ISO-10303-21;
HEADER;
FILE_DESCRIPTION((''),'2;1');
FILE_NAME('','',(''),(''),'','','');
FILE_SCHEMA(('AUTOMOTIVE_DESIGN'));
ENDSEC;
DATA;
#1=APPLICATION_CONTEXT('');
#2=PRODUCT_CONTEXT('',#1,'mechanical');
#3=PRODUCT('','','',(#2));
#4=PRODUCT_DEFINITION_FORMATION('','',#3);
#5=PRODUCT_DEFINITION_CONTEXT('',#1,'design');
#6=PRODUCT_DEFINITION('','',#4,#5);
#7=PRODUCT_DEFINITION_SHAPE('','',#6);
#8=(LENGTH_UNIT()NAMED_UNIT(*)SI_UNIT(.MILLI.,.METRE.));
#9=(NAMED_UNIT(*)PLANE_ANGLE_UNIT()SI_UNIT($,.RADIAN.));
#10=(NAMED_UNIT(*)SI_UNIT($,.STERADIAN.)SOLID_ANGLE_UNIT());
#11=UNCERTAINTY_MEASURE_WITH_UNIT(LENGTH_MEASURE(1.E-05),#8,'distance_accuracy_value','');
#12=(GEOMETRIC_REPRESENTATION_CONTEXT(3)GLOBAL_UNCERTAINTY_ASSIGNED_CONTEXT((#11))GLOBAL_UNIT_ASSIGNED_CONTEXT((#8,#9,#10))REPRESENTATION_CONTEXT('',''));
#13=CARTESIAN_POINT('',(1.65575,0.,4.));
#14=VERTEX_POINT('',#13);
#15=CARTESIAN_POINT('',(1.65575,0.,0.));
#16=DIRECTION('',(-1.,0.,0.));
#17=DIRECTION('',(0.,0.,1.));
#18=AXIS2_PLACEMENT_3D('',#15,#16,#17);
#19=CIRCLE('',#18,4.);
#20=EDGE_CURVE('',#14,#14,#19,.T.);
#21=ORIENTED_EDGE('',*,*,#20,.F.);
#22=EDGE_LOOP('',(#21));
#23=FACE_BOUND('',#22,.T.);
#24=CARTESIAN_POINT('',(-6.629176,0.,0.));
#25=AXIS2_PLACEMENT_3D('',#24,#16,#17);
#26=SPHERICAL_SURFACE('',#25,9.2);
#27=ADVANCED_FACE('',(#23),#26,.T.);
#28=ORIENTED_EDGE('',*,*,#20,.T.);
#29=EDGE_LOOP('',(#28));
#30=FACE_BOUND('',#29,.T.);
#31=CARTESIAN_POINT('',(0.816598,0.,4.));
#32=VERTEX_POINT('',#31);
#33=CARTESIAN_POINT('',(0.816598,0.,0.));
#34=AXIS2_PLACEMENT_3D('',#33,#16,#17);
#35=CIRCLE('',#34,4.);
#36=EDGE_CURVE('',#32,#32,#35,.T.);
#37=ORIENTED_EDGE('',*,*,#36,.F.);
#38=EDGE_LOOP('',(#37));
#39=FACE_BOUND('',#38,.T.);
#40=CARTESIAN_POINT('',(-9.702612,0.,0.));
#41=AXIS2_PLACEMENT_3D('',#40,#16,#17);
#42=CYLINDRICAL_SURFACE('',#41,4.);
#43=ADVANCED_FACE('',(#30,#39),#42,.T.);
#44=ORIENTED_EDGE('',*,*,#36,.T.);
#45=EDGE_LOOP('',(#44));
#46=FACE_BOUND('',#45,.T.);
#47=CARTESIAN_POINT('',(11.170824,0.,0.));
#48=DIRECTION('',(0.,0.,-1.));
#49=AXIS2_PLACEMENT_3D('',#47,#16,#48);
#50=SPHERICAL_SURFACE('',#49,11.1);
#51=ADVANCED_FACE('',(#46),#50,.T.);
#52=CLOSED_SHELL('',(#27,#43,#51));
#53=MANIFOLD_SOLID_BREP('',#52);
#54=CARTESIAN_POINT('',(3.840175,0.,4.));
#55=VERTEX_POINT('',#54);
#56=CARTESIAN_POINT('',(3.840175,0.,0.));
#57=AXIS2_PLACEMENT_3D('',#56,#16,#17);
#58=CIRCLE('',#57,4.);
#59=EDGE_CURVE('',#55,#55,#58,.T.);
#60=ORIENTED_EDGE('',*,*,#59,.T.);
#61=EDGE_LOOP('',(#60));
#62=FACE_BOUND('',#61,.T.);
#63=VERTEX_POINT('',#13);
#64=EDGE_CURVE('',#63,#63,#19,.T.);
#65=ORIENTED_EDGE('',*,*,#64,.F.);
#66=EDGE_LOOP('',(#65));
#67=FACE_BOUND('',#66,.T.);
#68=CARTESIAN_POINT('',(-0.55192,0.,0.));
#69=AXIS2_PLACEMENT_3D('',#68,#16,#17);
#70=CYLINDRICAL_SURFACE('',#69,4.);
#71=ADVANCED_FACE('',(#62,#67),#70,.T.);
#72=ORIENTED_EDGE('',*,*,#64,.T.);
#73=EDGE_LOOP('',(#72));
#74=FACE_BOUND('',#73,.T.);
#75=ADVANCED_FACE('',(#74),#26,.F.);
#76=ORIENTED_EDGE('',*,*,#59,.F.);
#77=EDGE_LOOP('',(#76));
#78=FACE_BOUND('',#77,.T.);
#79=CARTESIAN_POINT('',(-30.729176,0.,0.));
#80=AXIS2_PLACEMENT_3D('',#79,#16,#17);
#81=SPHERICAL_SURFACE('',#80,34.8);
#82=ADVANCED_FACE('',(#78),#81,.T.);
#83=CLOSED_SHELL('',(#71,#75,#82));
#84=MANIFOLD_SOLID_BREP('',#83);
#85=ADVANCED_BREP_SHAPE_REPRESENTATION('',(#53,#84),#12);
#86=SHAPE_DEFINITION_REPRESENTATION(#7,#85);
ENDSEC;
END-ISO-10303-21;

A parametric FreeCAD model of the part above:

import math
import FreeCAD as App
import Part
import Sketcher
from FreeCAD import Vector

doc = App.newDocument("Part")
params = doc.addObject("Spreadsheet::Sheet", "Params")
for row, (alias, value) in enumerate([
    ("sketch1_radius", "11.1 mm"),
    ("sketch1_radius2", "9.2 mm"),
    ("sketch1_width", "2.5 mm"),
    ("revolution_angle", "360 deg"),
    ("sketch2_radius", "9.2 mm"),
    ("sketch2_radius2", "34.8 mm"),
    ("sketch2_width", "1.5 mm"),
    ("revolution2_angle", "360 deg"),
], start=1):
    params.set(f"A{row}", alias)
    params.set(f"B{row}", "=" + value)
    params.setAlias(f"B{row}", alias)

body = doc.addObject("PartDesign::Body", "Body")

# Sketch on XZ plane
sketch1 = body.newObject("Sketcher::SketchObject", "Sketch")
sketch1.AttachmentSupport = (doc.getObject("XZ_Plane"), [""])
sketch1.MapMode = "FlatFace"
sketch1.addGeometry([
    Part.ArcOfCircle(Part.Circle(Vector(11.2, 0, 0), Vector(0, 0, 1), 11.1), math.radians(-180), math.radians(-159)),
    Part.LineSegment(Vector(0.1, 0, 0), Vector(2.6, 0, 0)),
    Part.ArcOfCircle(Part.Circle(Vector(-6.6, 0, 0), Vector(0, 0, 1), 9.2), math.radians(-26), math.radians(0)),
    Part.LineSegment(Vector(1.7, -4, 0), Vector(0.8, -4, 0)),
], False)
sketch1.addConstraint([
    Sketcher.Constraint("Coincident", 0, 1, 1, 1),
    Sketcher.Constraint("Coincident", 1, 2, 2, 2),
    Sketcher.Constraint("Coincident", 2, 1, 3, 1),
    Sketcher.Constraint("Coincident", 3, 2, 0, 2),
    Sketcher.Constraint("Horizontal", 1),
    Sketcher.Constraint("Horizontal", 3),
    Sketcher.Constraint("PointOnObject", 0, 3, -1),
    Sketcher.Constraint("PointOnObject", 2, 3, -1),
    Sketcher.Constraint("PointOnObject", 0, 1, -1),
    Sketcher.Constraint("Radius", 0, 11.1),
    Sketcher.Constraint("Radius", 2, 9.2),
    Sketcher.Constraint("DistanceX", 1, 1, 1, 2, 2.5),
    Sketcher.Constraint("DistanceY", 2, 1, -1, 1, 4.0),
    Sketcher.Constraint("DistanceX", -1, 1, 3, 2, 0.816598),
])
sketch1.setExpression("Constraints[9]", "Params.sketch1_radius")
sketch1.setExpression("Constraints[10]", "Params.sketch1_radius2")
sketch1.setExpression("Constraints[11]", "Params.sketch1_width")
revolution = body.newObject("PartDesign::Revolution", "Revolution")
revolution.Profile = sketch1
revolution.ReferenceAxis = (sketch1, ["H_Axis"])
revolution.setExpression("Angle", "Params.revolution_angle")
body2 = doc.addObject("PartDesign::Body", "Body001")

# Sketch on XZ plane
sketch2 = body2.newObject("Sketcher::SketchObject", "Sketch001")
sketch2.AttachmentSupport = (doc.getObject("XZ_Plane001"), [""])
sketch2.MapMode = "FlatFace"
sketch2.addGeometry([
    Part.LineSegment(Vector(3.8, -4, 0), Vector(1.7, -4, 0)),
    Part.ArcOfCircle(Part.Circle(Vector(-6.6, 0, 0), Vector(0, 0, 1), 9.2), math.radians(-26), math.radians(0)),
    Part.LineSegment(Vector(2.6, 0, 0), Vector(4.1, 0, 0)),
    Part.ArcOfCircle(Part.Circle(Vector(-30.7, 0, 0), Vector(0, 0, 1), 34.8), math.radians(-6.6), math.radians(0)),
], False)
sketch2.addConstraint([
    Sketcher.Constraint("Coincident", 0, 2, 1, 1),
    Sketcher.Constraint("Coincident", 1, 2, 2, 1),
    Sketcher.Constraint("Coincident", 2, 2, 3, 2),
    Sketcher.Constraint("Coincident", 3, 1, 0, 1),
    Sketcher.Constraint("Horizontal", 0),
    Sketcher.Constraint("Horizontal", 2),
    Sketcher.Constraint("PointOnObject", 1, 3, -1),
    Sketcher.Constraint("PointOnObject", 3, 3, -1),
    Sketcher.Constraint("PointOnObject", 1, 2, -1),
    Sketcher.Constraint("Radius", 1, 9.2),
    Sketcher.Constraint("Radius", 3, 34.8),
    Sketcher.Constraint("DistanceX", 2, 1, 2, 2, 1.5),
    Sketcher.Constraint("DistanceY", 0, 2, -1, 1, 4.0),
    Sketcher.Constraint("DistanceX", -1, 1, 0, 2, 1.65575),
])
sketch2.setExpression("Constraints[9]", "Params.sketch2_radius")
sketch2.setExpression("Constraints[10]", "Params.sketch2_radius2")
sketch2.setExpression("Constraints[11]", "Params.sketch2_width")
revolution2 = body2.newObject("PartDesign::Revolution", "Revolution001")
revolution2.Profile = sketch2
revolution2.ReferenceAxis = (sketch2, ["H_Axis"])
revolution2.setExpression("Angle", "Params.revolution2_angle")

doc.recompute()
